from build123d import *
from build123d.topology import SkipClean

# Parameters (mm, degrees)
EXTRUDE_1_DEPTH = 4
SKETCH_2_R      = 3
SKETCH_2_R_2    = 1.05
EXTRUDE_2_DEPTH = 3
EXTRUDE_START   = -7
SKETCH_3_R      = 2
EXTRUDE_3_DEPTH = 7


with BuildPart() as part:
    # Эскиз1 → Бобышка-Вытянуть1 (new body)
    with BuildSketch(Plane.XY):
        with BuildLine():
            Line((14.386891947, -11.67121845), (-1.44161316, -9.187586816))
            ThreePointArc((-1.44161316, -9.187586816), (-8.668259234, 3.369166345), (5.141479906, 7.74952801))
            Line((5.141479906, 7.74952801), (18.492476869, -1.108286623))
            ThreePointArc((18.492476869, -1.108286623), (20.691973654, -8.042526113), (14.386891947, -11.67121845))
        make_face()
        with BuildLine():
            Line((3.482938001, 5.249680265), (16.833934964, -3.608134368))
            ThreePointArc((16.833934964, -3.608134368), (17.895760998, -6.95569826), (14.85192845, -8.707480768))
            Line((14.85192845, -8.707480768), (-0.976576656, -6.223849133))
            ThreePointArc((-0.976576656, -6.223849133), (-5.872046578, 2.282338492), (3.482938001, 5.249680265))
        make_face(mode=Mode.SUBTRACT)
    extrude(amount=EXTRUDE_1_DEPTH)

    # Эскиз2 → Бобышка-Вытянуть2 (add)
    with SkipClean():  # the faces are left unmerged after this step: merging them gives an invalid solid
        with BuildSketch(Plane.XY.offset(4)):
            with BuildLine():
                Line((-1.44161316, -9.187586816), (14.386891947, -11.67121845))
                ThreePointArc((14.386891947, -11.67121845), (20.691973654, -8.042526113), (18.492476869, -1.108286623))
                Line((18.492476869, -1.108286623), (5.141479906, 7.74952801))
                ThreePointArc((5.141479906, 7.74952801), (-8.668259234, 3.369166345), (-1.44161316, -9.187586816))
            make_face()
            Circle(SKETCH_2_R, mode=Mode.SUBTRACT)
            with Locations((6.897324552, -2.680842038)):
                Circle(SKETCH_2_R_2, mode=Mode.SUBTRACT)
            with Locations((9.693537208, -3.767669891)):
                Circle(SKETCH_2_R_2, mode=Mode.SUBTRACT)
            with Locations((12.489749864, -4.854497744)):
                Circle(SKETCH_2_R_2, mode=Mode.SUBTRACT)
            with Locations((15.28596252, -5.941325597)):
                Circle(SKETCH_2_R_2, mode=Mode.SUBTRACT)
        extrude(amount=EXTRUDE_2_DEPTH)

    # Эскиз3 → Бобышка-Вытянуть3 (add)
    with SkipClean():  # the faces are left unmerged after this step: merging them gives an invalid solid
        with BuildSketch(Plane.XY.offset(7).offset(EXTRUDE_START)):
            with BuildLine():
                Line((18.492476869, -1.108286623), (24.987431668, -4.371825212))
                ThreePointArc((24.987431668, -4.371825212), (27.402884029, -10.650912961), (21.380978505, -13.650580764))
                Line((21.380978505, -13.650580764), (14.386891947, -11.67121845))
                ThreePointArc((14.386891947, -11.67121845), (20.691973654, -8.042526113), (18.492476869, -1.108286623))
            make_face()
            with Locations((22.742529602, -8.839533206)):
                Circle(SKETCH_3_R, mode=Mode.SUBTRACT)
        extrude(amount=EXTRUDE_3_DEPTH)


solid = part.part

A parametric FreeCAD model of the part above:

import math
import FreeCAD as App
import Part
import Sketcher

V = App.Vector
Q = App.Units.Quantity

doc = App.newDocument("Part")
body = doc.addObject("PartDesign::Body", "Body")

# Sketch on XY plane
sketch1 = body.newObject("Sketcher::SketchObject", "Sketch")
sketch1.AttachmentSupport = (doc.getObject("XY_Plane"), [""])
sketch1.MapMode = "FlatFace"
sketch1.addGeometry([
    Part.LineSegment(V(-1.4, -9.2, 0), V(14.4, -11.7, 0)),  # 0
    Part.ArcOfCircle(Part.Circle(V(15.3, -5.9, 0), V(0, 0, 1), 5.8), math.radians(-99), math.radians(56)),  # 1
    Part.LineSegment(V(18.5, -1.1, 0), V(5.1, 7.7, 0)),  # 2
    Part.ArcOfCircle(Part.Circle(V(0, 0, 0), V(0, 0, 1), 9.3), math.radians(56), math.radians(261)),  # 3
    Part.LineSegment(V(3.5, 5.2, 0), V(16.8, -3.6, 0)),  # 4
    Part.ArcOfCircle(Part.Circle(V(15.3, -5.9, 0), V(0, 0, 1), 2.8), math.radians(-99), math.radians(56)),  # 5
    Part.LineSegment(V(14.9, -8.7, 0), V(-1, -6.2, 0)),  # 6
    Part.ArcOfCircle(Part.Circle(V(0, 0, 0), V(0, 0, 1), 6.3), math.radians(56), math.radians(261)),  # 7
], False)
sketch1.addConstraint([
    Sketcher.Constraint("Tangent", 0, 2, 1, 1),
    Sketcher.Constraint("Tangent", 1, 2, 2, 1),
    Sketcher.Constraint("Tangent", 2, 2, 3, 1),
    Sketcher.Constraint("Tangent", 3, 2, 0, 1),
    Sketcher.Constraint("Tangent", 4, 2, 5, 2),
    Sketcher.Constraint("Tangent", 5, 1, 6, 1),
    Sketcher.Constraint("Tangent", 6, 2, 7, 2),
    Sketcher.Constraint("Tangent", 7, 1, 4, 1),
    Sketcher.Constraint("Coincident", 3, 3, -1, 1),
    Sketcher.Constraint("Coincident", 7, 3, -1, 1),
    Sketcher.Constraint("Coincident", 5, 3, 1, 3),
    Sketcher.Constraint("Parallel", 2, 4),
    Sketcher.Constraint("Radius", 1, Q("5.8 mm")),
    Sketcher.Constraint("Radius", 3, Q("9.3 mm")),
    Sketcher.Constraint("Radius", 5, Q("2.8 mm")),
    Sketcher.Constraint("DistanceX", -1, 1, 0, 2, Q("14.386892 mm")),
    Sketcher.Constraint("DistanceY", 0, 2, -1, 1, Q("11.671218 mm")),
])
pad1 = body.newObject("PartDesign::Pad", "Pad")
pad1.Profile = sketch1
pad1.Length = 4

# Sketch on XY plane
sketch2 = body.newObject("Sketcher::SketchObject", "Sketch001")
sketch2.AttachmentSupport = (doc.getObject("XY_Plane"), [""])
sketch2.MapMode = "FlatFace"
sketch2.AttachmentOffset = App.Placement(V(0, 0, 4), App.Rotation())
sketch2.addGeometry([
    Part.LineSegment(V(-1.4, -9.2, 0), V(14.4, -11.7, 0)),  # 0
    Part.ArcOfCircle(Part.Circle(V(15.3, -5.9, 0), V(0, 0, 1), 5.8), math.radians(-99), math.radians(56)),  # 1
    Part.LineSegment(V(18.5, -1.1, 0), V(5.1, 7.7, 0)),  # 2
    Part.ArcOfCircle(Part.Circle(V(0, 0, 0), V(0, 0, 1), 9.3), math.radians(56), math.radians(261)),  # 3
    Part.Circle(V(15.3, -5.9, 0), V(0, 0, 1), 1.1),  # 4
    Part.Circle(V(12.5, -4.9, 0), V(0, 0, 1), 1.1),  # 5
    Part.Circle(V(9.7, -3.8, 0), V(0, 0, 1), 1.1),  # 6
    Part.Circle(V(6.9, -2.7, 0), V(0, 0, 1), 1.1),  # 7
    Part.Circle(V(0, 0, 0), V(0, 0, 1), 3),  # 8
], False)
sketch2.addConstraint([
    Sketcher.Constraint("Tangent", 0, 2, 1, 1),
    Sketcher.Constraint("Tangent", 1, 2, 2, 1),
    Sketcher.Constraint("Tangent", 2, 2, 3, 1),
    Sketcher.Constraint("Tangent", 3, 2, 0, 1),
    Sketcher.Constraint("Coincident", 3, 3, -1, 1),
    Sketcher.Constraint("Coincident", 8, 3, -1, 1),
    Sketcher.Constraint("Coincident", 4, 3, 1, 3),
    Sketcher.Constraint("Equal", 4, 5),
    Sketcher.Constraint("Equal", 5, 6),
    Sketcher.Constraint("Equal", 6, 7),
    Sketcher.Constraint("Diameter", 8, Q("6 mm")),
    Sketcher.Constraint("Diameter", 4, Q("2.1 mm")),
    Sketcher.Constraint("Radius", 1, Q("5.8 mm")),
    Sketcher.Constraint("Radius", 3, Q("9.3 mm")),
    Sketcher.Constraint("DistanceX", -1, 1, 5, 3, Q("12.48975 mm")),
    Sketcher.Constraint("DistanceY", 6, 3, -1, 1, Q("3.76767 mm")),
    Sketcher.Constraint("DistanceX", -1, 1, 0, 2, Q("14.386892 mm")),
    Sketcher.Constraint("DistanceY", 0, 2, -1, 1, Q("11.671218 mm")),
    Sketcher.Constraint("DistanceY", 0, 2, 5, 3, Q("6.816721 mm")),
    Sketcher.Constraint("DistanceX", 6, 3, 1, 2, Q("8.79894 mm")),
    Sketcher.Constraint("DistanceY", 7, 3, 2, 2, Q("10.43037 mm")),
    Sketcher.Constraint("DistanceX", -1, 1, 7, 3, Q("6.897325 mm")),
])
pad2 = body.newObject("PartDesign::Pad", "Pad001")
pad2.Profile = sketch2
pad2.Length = 3

# Sketch on XY plane
sketch3 = body.newObject("Sketcher::SketchObject", "Sketch002")
sketch3.AttachmentSupport = (doc.getObject("XY_Plane"), [""])
sketch3.MapMode = "FlatFace"
sketch3.addGeometry([
    Part.LineSegment(V(25, -4.4, 0), V(18.5, -1.1, 0)),  # 0
    Part.ArcOfCircle(Part.Circle(V(15.3, -5.9, 0), V(0, 0, 1), 5.8), math.radians(-99), math.radians(56)),  # 1
    Part.LineSegment(V(14.4, -11.7, 0), V(21.4, -13.7, 0)),  # 2
    Part.ArcOfCircle(Part.Circle(V(22.7, -8.8, 0), V(0, 0, 1), 5), math.radians(-106), math.radians(63)),  # 3
    Part.Circle(V(22.7, -8.8, 0), V(0, 0, 1), 2),  # 4
], False)
sketch3.addConstraint([
    Sketcher.Constraint("Coincident", 0, 2, 1, 2),
    Sketcher.Constraint("Coincident", 1, 1, 2, 1),
    Sketcher.Constraint("Tangent", 2, 2, 3, 1),
    Sketcher.Constraint("Tangent", 3, 2, 0, 1),
    Sketcher.Constraint("Coincident", 4, 3, 3, 3),
    Sketcher.Constraint("Equal", 0, 2),
    Sketcher.Constraint("Diameter", 4, Q("4 mm")),
    Sketcher.Constraint("Radius", 3, Q("5 mm")),
    Sketcher.Constraint("Radius", 1, Q("5.8 mm")),
    Sketcher.Constraint("DistanceX", 0, 2, 2, 2, Q("2.888502 mm")),
    Sketcher.Constraint("DistanceY", 1, 3, 3, 2, Q("1.5695 mm")),
    Sketcher.Constraint("DistanceX", -1, 1, 3, 3, Q("22.74253 mm")),
    Sketcher.Constraint("DistanceX", -1, 1, 1, 1, Q("14.386892 mm")),
    Sketcher.Constraint("DistanceY", 1, 1, -1, 1, Q("11.671218 mm")),
])
pad3 = body.newObject("PartDesign::Pad", "Pad002")
pad3.Profile = sketch3
pad3.Length = 7

doc.recompute()
